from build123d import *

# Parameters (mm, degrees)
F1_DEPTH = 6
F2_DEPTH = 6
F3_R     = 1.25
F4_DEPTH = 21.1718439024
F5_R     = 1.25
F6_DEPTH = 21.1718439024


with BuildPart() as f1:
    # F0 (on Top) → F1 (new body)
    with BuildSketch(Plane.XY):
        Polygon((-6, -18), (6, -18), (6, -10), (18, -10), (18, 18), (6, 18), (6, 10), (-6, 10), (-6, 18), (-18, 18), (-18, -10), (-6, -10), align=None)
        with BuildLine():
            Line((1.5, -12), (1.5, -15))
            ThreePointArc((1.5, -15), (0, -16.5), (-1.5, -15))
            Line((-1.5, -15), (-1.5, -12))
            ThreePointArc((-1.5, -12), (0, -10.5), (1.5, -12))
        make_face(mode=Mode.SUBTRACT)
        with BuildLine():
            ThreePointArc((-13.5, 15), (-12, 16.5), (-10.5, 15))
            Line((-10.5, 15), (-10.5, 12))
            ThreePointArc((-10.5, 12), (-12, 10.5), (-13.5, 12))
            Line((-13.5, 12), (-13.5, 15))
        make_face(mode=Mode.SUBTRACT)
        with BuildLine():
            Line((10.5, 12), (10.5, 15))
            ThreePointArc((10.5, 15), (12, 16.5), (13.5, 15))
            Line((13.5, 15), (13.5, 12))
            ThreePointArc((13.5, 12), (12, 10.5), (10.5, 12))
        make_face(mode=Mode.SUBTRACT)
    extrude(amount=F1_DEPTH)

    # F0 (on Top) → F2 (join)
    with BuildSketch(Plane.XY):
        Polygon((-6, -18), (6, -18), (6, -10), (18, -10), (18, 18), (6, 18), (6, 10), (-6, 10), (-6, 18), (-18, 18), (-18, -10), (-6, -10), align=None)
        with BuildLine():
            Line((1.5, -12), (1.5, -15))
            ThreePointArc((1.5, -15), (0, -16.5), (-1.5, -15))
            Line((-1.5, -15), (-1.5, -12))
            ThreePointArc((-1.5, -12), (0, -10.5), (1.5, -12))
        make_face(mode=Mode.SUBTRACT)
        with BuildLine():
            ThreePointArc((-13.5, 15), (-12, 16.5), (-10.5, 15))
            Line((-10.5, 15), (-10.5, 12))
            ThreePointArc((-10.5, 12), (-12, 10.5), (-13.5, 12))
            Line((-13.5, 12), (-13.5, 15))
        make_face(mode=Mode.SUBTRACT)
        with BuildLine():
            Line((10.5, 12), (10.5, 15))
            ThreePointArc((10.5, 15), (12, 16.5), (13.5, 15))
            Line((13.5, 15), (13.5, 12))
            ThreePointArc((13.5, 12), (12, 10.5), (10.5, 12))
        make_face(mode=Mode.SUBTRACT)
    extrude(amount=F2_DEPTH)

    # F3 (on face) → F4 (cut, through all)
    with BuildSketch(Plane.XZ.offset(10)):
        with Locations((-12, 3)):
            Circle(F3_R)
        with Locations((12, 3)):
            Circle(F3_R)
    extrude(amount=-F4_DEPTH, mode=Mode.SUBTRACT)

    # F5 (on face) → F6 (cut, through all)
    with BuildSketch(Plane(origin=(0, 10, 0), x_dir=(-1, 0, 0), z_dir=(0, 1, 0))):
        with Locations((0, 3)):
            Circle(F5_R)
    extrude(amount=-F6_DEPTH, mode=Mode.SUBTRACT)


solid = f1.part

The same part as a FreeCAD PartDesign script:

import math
import FreeCAD as App
import Part
import Sketcher

V = App.Vector


def add_polygon(sketch, points):
    """Adds a closed chain of lines whose ends are joined by coincident constraints."""
    first, n = sketch.GeometryCount, len(points)
    for a, b in zip(points, points[1:] + points[:1]):
        sketch.addGeometry(Part.LineSegment(App.Vector(*a, 0), App.Vector(*b, 0)), False)
    for i in range(n):
        sketch.addConstraint(Sketcher.Constraint("Coincident", first + i, 2, first + (i + 1) % n, 1))

doc = App.newDocument("Part")
body = doc.addObject("PartDesign::Body", "Body")

sketch1 = doc.addObject("Sketcher::SketchObject", "Sketch")
body.addObject(sketch1)
sketch1.AttachmentSupport = (doc.XY_Plane, [""])
sketch1.MapMode = "FlatFace"
add_polygon(sketch1, [(-6, -18), (6, -18), (6, -10), (18, -10), (18, 18), (6, 18), (6, 10), (-6, 10), (-6, 18), (-18, 18), (-18, -10), (-6, -10)])
sketch1.addGeometry(Part.ArcOfCircle(Part.Circle(V(0, -12, 0), V(0, 0, 1), 1.5), math.radians(0), math.radians(180)), False)
sketch1.addGeometry(Part.LineSegment(V(1.5, -12, 0), V(1.5, -15, 0)), False)
sketch1.addGeometry(Part.ArcOfCircle(Part.Circle(V(0, -15, 0), V(0, 0, 1), 1.5), math.radians(180), math.radians(360)), False)
sketch1.addGeometry(Part.LineSegment(V(-1.5, -15, 0), V(-1.5, -12, 0)), False)
sketch1.addGeometry(Part.LineSegment(V(-13.5, 12, 0), V(-13.5, 15, 0)), False)
sketch1.addGeometry(Part.ArcOfCircle(Part.Circle(V(-12, 15, 0), V(0, 0, 1), 1.5), math.radians(0), math.radians(180)), False)
sketch1.addGeometry(Part.LineSegment(V(-10.5, 15, 0), V(-10.5, 12, 0)), False)
sketch1.addGeometry(Part.ArcOfCircle(Part.Circle(V(-12, 12, 0), V(0, 0, 1), 1.5), math.radians(180), math.radians(360)), False)
sketch1.addGeometry(Part.ArcOfCircle(Part.Circle(V(12, 12, 0), V(0, 0, 1), 1.5), math.radians(180), math.radians(360)), False)
sketch1.addGeometry(Part.LineSegment(V(10.5, 12, 0), V(10.5, 15, 0)), False)
sketch1.addGeometry(Part.ArcOfCircle(Part.Circle(V(12, 15, 0), V(0, 0, 1), 1.5), math.radians(0), math.radians(180)), False)
sketch1.addGeometry(Part.LineSegment(V(13.5, 15, 0), V(13.5, 12, 0)), False)
sketch1.addConstraint(Sketcher.Constraint("Tangent", 12, 1, 13, 1))
sketch1.addConstraint(Sketcher.Constraint("Tangent", 13, 2, 14, 2))
sketch1.addConstraint(Sketcher.Constraint("Tangent", 14, 1, 15, 1))
sketch1.addConstraint(Sketcher.Constraint("Tangent", 15, 2, 12, 2))
sketch1.addConstraint(Sketcher.Constraint("Tangent", 16, 2, 17, 2))
sketch1.addConstraint(Sketcher.Constraint("Tangent", 17, 1, 18, 1))
sketch1.addConstraint(Sketcher.Constraint("Tangent", 18, 2, 19, 2))
sketch1.addConstraint(Sketcher.Constraint("Tangent", 19, 1, 16, 1))
sketch1.addConstraint(Sketcher.Constraint("Tangent", 20, 1, 21, 1))
sketch1.addConstraint(Sketcher.Constraint("Tangent", 21, 2, 22, 2))
sketch1.addConstraint(Sketcher.Constraint("Tangent", 22, 1, 23, 1))
sketch1.addConstraint(Sketcher.Constraint("Tangent", 23, 2, 20, 2))
sketch1.addConstraint(Sketcher.Constraint("Horizontal", 0))
sketch1.addConstraint(Sketcher.Constraint("Vertical", 1))
sketch1.addConstraint(Sketcher.Constraint("Horizontal", 2))
sketch1.addConstraint(Sketcher.Constraint("Vertical", 3))
sketch1.addConstraint(Sketcher.Constraint("Horizontal", 4))
sketch1.addConstraint(Sketcher.Constraint("Vertical", 5))
sketch1.addConstraint(Sketcher.Constraint("Horizontal", 6))
sketch1.addConstraint(Sketcher.Constraint("Vertical", 7))
sketch1.addConstraint(Sketcher.Constraint("Horizontal", 8))
sketch1.addConstraint(Sketcher.Constraint("Vertical", 9))
sketch1.addConstraint(Sketcher.Constraint("Horizontal", 10))
sketch1.addConstraint(Sketcher.Constraint("Vertical", 11))
sketch1.addConstraint(Sketcher.Constraint("Vertical", 13))
sketch1.addConstraint(Sketcher.Constraint("Vertical", 15))
sketch1.addConstraint(Sketcher.Constraint("Vertical", 16))
sketch1.addConstraint(Sketcher.Constraint("Vertical", 18))
sketch1.addConstraint(Sketcher.Constraint("Vertical", 21))
sketch1.addConstraint(Sketcher.Constraint("Vertical", 23))
sketch1.addConstraint(Sketcher.Constraint("Equal", 14, 17))
sketch1.addConstraint(Sketcher.Constraint("Equal", 19, 20))
sketch1.addConstraint(Sketcher.Constraint("Symmetric", 1, 2, 6, 2, -1, 1))
sketch1.addConstraint(Sketcher.Constraint("Symmetric", 5, 2, 10, 2, -1, 1))
sketch1.addConstraint(Sketcher.Constraint("Symmetric", 19, 3, 20, 3, -2))
sketch1.addConstraint(Sketcher.Constraint("Symmetric", 4, 2, 7, 2, -2))
sketch1.addConstraint(Sketcher.Constraint("PointOnObject", 12, 3, -2))
sketch1.addConstraint(Sketcher.Constraint("Horizontal", 17, 3, 22, 3))
sketch1.addConstraint(Sketcher.Constraint("Equal", 0, 2))
sketch1.addConstraint(Sketcher.Constraint("Equal", 6, 8))
sketch1.addConstraint(Sketcher.Constraint("Equal", 1, 5))
sketch1.addConstraint(Sketcher.Constraint("Equal", 15, 16))
sketch1.addConstraint(Sketcher.Constraint("Radius", 12, 1.5))
sketch1.addConstraint(Sketcher.Constraint("DistanceX", 0, 1, 0, 2, 12.0))
sketch1.addConstraint(Sketcher.Constraint("DistanceY", 1, 1, 1, 2, 8.0))
sketch1.addConstraint(Sketcher.Constraint("DistanceY", 3, 1, 3, 2, 28.0))
sketch1.addConstraint(Sketcher.Constraint("DistanceY", 13, 2, 13, 1, 3.0))
sketch1.addConstraint(Sketcher.Constraint("DistanceY", 12, 3, -1, 1, 12.0))
sketch1.addConstraint(Sketcher.Constraint("DistanceX", 17, 3, -1, 1, 12.0))
sketch1.addConstraint(Sketcher.Constraint("DistanceY", -1, 1, 17, 3, 15.0))
pad1 = doc.addObject("PartDesign::Pad", "Pad")
body.addObject(pad1)
pad1.Profile = sketch1
pad1.Length = 6

sketch2 = doc.addObject("Sketcher::SketchObject", "Sketch001")
body.addObject(sketch2)
sketch2.AttachmentSupport = (doc.XY_Plane, [""])
sketch2.MapMode = "FlatFace"
add_polygon(sketch2, [(-6, -18), (6, -18), (6, -10), (18, -10), (18, 18), (6, 18), (6, 10), (-6, 10), (-6, 18), (-18, 18), (-18, -10), (-6, -10)])
sketch2.addGeometry(Part.ArcOfCircle(Part.Circle(V(0, -12, 0), V(0, 0, 1), 1.5), math.radians(0), math.radians(180)), False)
sketch2.addGeometry(Part.LineSegment(V(1.5, -12, 0), V(1.5, -15, 0)), False)
sketch2.addGeometry(Part.ArcOfCircle(Part.Circle(V(0, -15, 0), V(0, 0, 1), 1.5), math.radians(180), math.radians(360)), False)
sketch2.addGeometry(Part.LineSegment(V(-1.5, -15, 0), V(-1.5, -12, 0)), False)
sketch2.addGeometry(Part.LineSegment(V(-13.5, 12, 0), V(-13.5, 15, 0)), False)
sketch2.addGeometry(Part.ArcOfCircle(Part.Circle(V(-12, 15, 0), V(0, 0, 1), 1.5), math.radians(0), math.radians(180)), False)
sketch2.addGeometry(Part.LineSegment(V(-10.5, 15, 0), V(-10.5, 12, 0)), False)
sketch2.addGeometry(Part.ArcOfCircle(Part.Circle(V(-12, 12, 0), V(0, 0, 1), 1.5), math.radians(180), math.radians(360)), False)
sketch2.addGeometry(Part.ArcOfCircle(Part.Circle(V(12, 12, 0), V(0, 0, 1), 1.5), math.radians(180), math.radians(360)), False)
sketch2.addGeometry(Part.LineSegment(V(10.5, 12, 0), V(10.5, 15, 0)), False)
sketch2.addGeometry(Part.ArcOfCircle(Part.Circle(V(12, 15, 0), V(0, 0, 1), 1.5), math.radians(0), math.radians(180)), False)
sketch2.addGeometry(Part.LineSegment(V(13.5, 15, 0), V(13.5, 12, 0)), False)
sketch2.addConstraint(Sketcher.Constraint("Tangent", 12, 1, 13, 1))
sketch2.addConstraint(Sketcher.Constraint("Tangent", 13, 2, 14, 2))
sketch2.addConstraint(Sketcher.Constraint("Tangent", 14, 1, 15, 1))
sketch2.addConstraint(Sketcher.Constraint("Tangent", 15, 2, 12, 2))
sketch2.addConstraint(Sketcher.Constraint("Tangent", 16, 2, 17, 2))
sketch2.addConstraint(Sketcher.Constraint("Tangent", 17, 1, 18, 1))
sketch2.addConstraint(Sketcher.Constraint("Tangent", 18, 2, 19, 2))
sketch2.addConstraint(Sketcher.Constraint("Tangent", 19, 1, 16, 1))
sketch2.addConstraint(Sketcher.Constraint("Tangent", 20, 1, 21, 1))
sketch2.addConstraint(Sketcher.Constraint("Tangent", 21, 2, 22, 2))
sketch2.addConstraint(Sketcher.Constraint("Tangent", 22, 1, 23, 1))
sketch2.addConstraint(Sketcher.Constraint("Tangent", 23, 2, 20, 2))
sketch2.addConstraint(Sketcher.Constraint("Horizontal", 0))
sketch2.addConstraint(Sketcher.Constraint("Vertical", 1))
sketch2.addConstraint(Sketcher.Constraint("Horizontal", 2))
sketch2.addConstraint(Sketcher.Constraint("Vertical", 3))
sketch2.addConstraint(Sketcher.Constraint("Horizontal", 4))
sketch2.addConstraint(Sketcher.Constraint("Vertical", 5))
sketch2.addConstraint(Sketcher.Constraint("Horizontal", 6))
sketch2.addConstraint(Sketcher.Constraint("Vertical", 7))
sketch2.addConstraint(Sketcher.Constraint("Horizontal", 8))
sketch2.addConstraint(Sketcher.Constraint("Vertical", 9))
sketch2.addConstraint(Sketcher.Constraint("Horizontal", 10))
sketch2.addConstraint(Sketcher.Constraint("Vertical", 11))
sketch2.addConstraint(Sketcher.Constraint("Vertical", 13))
sketch2.addConstraint(Sketcher.Constraint("Vertical", 15))
sketch2.addConstraint(Sketcher.Constraint("Vertical", 16))
sketch2.addConstraint(Sketcher.Constraint("Vertical", 18))
sketch2.addConstraint(Sketcher.Constraint("Vertical", 21))
sketch2.addConstraint(Sketcher.Constraint("Vertical", 23))
sketch2.addConstraint(Sketcher.Constraint("Equal", 14, 17))
sketch2.addConstraint(Sketcher.Constraint("Equal", 19, 20))
sketch2.addConstraint(Sketcher.Constraint("Symmetric", 1, 2, 6, 2, -1, 1))
sketch2.addConstraint(Sketcher.Constraint("Symmetric", 5, 2, 10, 2, -1, 1))
sketch2.addConstraint(Sketcher.Constraint("Symmetric", 19, 3, 20, 3, -2))
sketch2.addConstraint(Sketcher.Constraint("Symmetric", 4, 2, 7, 2, -2))
sketch2.addConstraint(Sketcher.Constraint("PointOnObject", 12, 3, -2))
sketch2.addConstraint(Sketcher.Constraint("Horizontal", 17, 3, 22, 3))
sketch2.addConstraint(Sketcher.Constraint("Equal", 0, 2))
sketch2.addConstraint(Sketcher.Constraint("Equal", 6, 8))
sketch2.addConstraint(Sketcher.Constraint("Equal", 1, 5))
sketch2.addConstraint(Sketcher.Constraint("Equal", 15, 16))
sketch2.addConstraint(Sketcher.Constraint("Radius", 12, 1.5))
sketch2.addConstraint(Sketcher.Constraint("DistanceX", 0, 1, 0, 2, 12.0))
sketch2.addConstraint(Sketcher.Constraint("DistanceY", 1, 1, 1, 2, 8.0))
sketch2.addConstraint(Sketcher.Constraint("DistanceY", 3, 1, 3, 2, 28.0))
sketch2.addConstraint(Sketcher.Constraint("DistanceY", 13, 2, 13, 1, 3.0))
sketch2.addConstraint(Sketcher.Constraint("DistanceY", 12, 3, -1, 1, 12.0))
sketch2.addConstraint(Sketcher.Constraint("DistanceX", 17, 3, -1, 1, 12.0))
sketch2.addConstraint(Sketcher.Constraint("DistanceY", -1, 1, 17, 3, 15.0))
pad2 = doc.addObject("PartDesign::Pad", "Pad001")
body.addObject(pad2)
pad2.Profile = sketch2
pad2.Length = 6

sketch3 = doc.addObject("Sketcher::SketchObject", "Sketch002")
body.addObject(sketch3)
sketch3.AttachmentSupport = (doc.XZ_Plane, [""])
sketch3.MapMode = "FlatFace"
sketch3.AttachmentOffset = App.Placement(V(0, 0, 10), App.Rotation())
sketch3.addGeometry(Part.Circle(V(-12, 3, 0), V(0, 0, 1), 1.25), False)
sketch3.addGeometry(Part.Circle(V(12, 3, 0), V(0, 0, 1), 1.25), False)
sketch3.addConstraint(Sketcher.Constraint("Equal", 0, 1))
sketch3.addConstraint(Sketcher.Constraint("Symmetric", 0, 3, 1, 3, -2))
sketch3.addConstraint(Sketcher.Constraint("Diameter", 0, 2.5))
sketch3.addConstraint(Sketcher.Constraint("DistanceX", 0, 3, -1, 1, 12.0))
sketch3.addConstraint(Sketcher.Constraint("DistanceY", -1, 1, 0, 3, 3.0))
pocket1 = doc.addObject("PartDesign::Pocket", "Pocket")
body.addObject(pocket1)
pocket1.Profile = sketch3
pocket1.Length = 21.171844

sketch4 = doc.addObject("Sketcher::SketchObject", "Sketch003")
body.addObject(sketch4)
sketch4.AttachmentSupport = (doc.XZ_Plane, [""])
sketch4.MapMode = "FlatFace"
sketch4.AttachmentOffset = App.Placement(V(0, 0, -10), App.Rotation())
sketch4.addGeometry(Part.Circle(V(0, 3, 0), V(0, 0, 1), 1.25), False)
sketch4.addConstraint(Sketcher.Constraint("PointOnObject", 0, 3, -2))
sketch4.addConstraint(Sketcher.Constraint("Diameter", 0, 2.5))
sketch4.addConstraint(Sketcher.Constraint("DistanceY", -1, 1, 0, 3, 3.0))
pocket2 = doc.addObject("PartDesign::Pocket", "Pocket001")
body.addObject(pocket2)
pocket2.Profile = sketch4
pocket2.Length = 21.171844
pocket2.Reversed = True

doc.recompute()
